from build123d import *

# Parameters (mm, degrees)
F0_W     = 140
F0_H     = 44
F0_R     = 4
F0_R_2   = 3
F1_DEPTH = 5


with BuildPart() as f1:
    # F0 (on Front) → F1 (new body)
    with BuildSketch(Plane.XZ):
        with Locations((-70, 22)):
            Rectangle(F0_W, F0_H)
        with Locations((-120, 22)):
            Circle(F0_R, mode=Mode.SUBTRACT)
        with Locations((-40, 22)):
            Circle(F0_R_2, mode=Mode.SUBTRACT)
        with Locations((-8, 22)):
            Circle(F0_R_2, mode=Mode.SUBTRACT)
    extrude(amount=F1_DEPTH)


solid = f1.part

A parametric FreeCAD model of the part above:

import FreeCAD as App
import Part
import Sketcher

V = App.Vector

doc = App.newDocument("Part")
body = doc.addObject("PartDesign::Body", "Body")

sketch1 = doc.addObject("Sketcher::SketchObject", "Sketch")
body.addObject(sketch1)
sketch1.AttachmentSupport = (doc.XZ_Plane, [""])
sketch1.MapMode = "FlatFace"
sketch1.addGeometry([
    Part.LineSegment(V(-140, 44, 0), V(-140, 0, 0)),
    Part.LineSegment(V(-140, 0, 0), V(0, 0, 0)),
    Part.LineSegment(V(0, 0, 0), V(0, 44, 0)),
    Part.LineSegment(V(0, 44, 0), V(-140, 44, 0)),
    Part.Circle(V(-120, 22, 0), V(0, 0, 1), 4),
    Part.Circle(V(-40, 22, 0), V(0, 0, 1), 3),
    Part.Circle(V(-8, 22, 0), V(0, 0, 1), 3),
], False)
sketch1.addConstraint([
    Sketcher.Constraint("Coincident", 0, 2, 1, 1),
    Sketcher.Constraint("Coincident", 1, 2, 2, 1),
    Sketcher.Constraint("Coincident", 2, 2, 3, 1),
    Sketcher.Constraint("Coincident", 3, 2, 0, 1),
    Sketcher.Constraint("Vertical", 0),
    Sketcher.Constraint("Horizontal", 1),
    Sketcher.Constraint("Vertical", 2),
    Sketcher.Constraint("Horizontal", 3),
    Sketcher.Constraint("Coincident", 1, 2, -1, 1),
    Sketcher.Constraint("Equal", 5, 6),
    Sketcher.Constraint("Horizontal", 4, 3, 5, 3),
    Sketcher.Constraint("Horizontal", 5, 3, 6, 3),
    Sketcher.Constraint("Diameter", 4, 8.0),
    Sketcher.Constraint("Diameter", 5, 6.0),
    Sketcher.Constraint("DistanceX", 1, 1, 1, 2, 140.0),
    Sketcher.Constraint("DistanceY", 0, 2, 0, 1, 44.0),
    Sketcher.Constraint("DistanceX", 4, 3, -1, 1, 120.0),
    Sketcher.Constraint("DistanceY", -1, 1, 4, 3, 22.0),
    Sketcher.Constraint("DistanceX", 5, 3, -1, 1, 40.0),
    Sketcher.Constraint("DistanceX", 6, 3, -1, 1, 8.0),
])
pad1 = doc.addObject("PartDesign::Pad", "Pad")
body.addObject(pad1)
pad1.Profile = sketch1
pad1.Length = 5

doc.recompute()
